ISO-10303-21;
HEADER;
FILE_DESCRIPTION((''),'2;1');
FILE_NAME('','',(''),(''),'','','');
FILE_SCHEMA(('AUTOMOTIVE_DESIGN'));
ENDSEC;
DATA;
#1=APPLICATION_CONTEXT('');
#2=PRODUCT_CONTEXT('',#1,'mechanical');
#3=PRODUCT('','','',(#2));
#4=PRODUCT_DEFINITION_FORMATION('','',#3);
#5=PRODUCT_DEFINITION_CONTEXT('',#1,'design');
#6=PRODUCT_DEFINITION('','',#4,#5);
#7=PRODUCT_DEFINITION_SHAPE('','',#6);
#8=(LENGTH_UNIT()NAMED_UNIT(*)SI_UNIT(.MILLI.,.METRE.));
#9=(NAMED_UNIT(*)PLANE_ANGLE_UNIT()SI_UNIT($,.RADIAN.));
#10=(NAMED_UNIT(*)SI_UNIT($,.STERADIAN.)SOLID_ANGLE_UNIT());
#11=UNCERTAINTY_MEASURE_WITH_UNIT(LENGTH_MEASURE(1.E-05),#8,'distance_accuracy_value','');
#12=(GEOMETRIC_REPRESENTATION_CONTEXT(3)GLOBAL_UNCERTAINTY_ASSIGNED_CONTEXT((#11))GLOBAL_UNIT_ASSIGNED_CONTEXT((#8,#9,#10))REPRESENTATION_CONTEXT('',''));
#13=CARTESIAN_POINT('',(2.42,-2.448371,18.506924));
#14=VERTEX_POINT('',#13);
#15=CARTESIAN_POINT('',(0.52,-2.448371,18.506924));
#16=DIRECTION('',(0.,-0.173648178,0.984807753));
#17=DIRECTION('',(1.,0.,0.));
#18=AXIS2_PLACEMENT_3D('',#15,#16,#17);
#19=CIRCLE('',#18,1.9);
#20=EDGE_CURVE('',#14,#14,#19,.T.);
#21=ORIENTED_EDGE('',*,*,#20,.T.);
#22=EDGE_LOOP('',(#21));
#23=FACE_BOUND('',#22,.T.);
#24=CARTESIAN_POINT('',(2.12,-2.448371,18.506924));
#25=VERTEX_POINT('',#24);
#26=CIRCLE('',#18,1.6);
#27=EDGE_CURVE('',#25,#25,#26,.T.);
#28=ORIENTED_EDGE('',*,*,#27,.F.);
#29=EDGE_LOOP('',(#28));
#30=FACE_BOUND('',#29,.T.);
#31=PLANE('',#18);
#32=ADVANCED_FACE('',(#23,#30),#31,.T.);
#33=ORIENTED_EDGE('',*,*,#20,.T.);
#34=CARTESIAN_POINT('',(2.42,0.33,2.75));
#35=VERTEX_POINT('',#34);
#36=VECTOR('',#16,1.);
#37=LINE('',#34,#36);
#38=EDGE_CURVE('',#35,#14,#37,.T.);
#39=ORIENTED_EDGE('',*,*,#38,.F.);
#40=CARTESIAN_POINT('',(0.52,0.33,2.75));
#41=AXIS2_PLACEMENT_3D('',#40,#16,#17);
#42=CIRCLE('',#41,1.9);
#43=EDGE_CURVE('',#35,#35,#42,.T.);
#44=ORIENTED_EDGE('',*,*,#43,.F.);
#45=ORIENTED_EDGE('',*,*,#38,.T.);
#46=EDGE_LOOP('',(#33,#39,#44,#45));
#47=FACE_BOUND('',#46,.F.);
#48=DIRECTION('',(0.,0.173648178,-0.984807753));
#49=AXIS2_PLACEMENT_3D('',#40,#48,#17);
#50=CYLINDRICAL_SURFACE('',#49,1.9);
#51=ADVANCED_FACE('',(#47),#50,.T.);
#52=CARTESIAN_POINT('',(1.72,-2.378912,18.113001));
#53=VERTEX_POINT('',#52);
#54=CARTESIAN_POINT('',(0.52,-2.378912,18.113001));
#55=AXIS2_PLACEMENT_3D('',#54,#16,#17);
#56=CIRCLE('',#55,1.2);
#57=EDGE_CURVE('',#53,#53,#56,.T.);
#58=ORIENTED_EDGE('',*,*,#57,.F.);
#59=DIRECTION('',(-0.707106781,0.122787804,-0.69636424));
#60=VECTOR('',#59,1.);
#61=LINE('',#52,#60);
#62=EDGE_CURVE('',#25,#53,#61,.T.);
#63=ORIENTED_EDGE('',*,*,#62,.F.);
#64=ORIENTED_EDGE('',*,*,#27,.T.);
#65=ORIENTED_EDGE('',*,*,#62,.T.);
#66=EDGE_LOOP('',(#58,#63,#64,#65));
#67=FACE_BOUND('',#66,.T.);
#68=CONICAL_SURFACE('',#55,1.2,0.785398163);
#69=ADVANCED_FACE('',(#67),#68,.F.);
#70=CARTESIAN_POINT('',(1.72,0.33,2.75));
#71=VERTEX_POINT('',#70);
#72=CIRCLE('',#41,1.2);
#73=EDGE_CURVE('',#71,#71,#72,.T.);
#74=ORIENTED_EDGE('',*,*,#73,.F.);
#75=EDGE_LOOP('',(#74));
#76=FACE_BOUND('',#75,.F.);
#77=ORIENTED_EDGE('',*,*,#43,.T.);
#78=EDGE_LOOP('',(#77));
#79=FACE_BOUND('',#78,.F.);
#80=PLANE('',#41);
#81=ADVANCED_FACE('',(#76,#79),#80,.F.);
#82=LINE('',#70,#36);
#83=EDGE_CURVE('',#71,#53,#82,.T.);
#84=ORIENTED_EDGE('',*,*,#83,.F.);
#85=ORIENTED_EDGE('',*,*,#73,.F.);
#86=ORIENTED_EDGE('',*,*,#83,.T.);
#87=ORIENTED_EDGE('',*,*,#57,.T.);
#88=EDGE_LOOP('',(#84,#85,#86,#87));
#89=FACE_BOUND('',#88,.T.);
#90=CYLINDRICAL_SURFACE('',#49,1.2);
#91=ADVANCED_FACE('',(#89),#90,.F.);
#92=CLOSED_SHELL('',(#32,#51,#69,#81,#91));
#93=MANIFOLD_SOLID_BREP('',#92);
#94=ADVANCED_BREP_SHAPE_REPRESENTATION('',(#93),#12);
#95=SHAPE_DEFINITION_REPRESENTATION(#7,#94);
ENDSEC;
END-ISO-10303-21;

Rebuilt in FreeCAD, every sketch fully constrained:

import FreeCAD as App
import Part
import Sketcher
from FreeCAD import Vector


def edges_at(feature, points):
    """Names of the edges that pass closest to the given points."""
    edges = feature.Shape.Edges
    near = lambda p: min(range(len(edges)), key=lambda i: edges[i].distToShape(Part.Vertex(*p))[0])
    return sorted({f"Edge{near(p) + 1}" for p in points})

doc = App.newDocument("Part")
params = doc.addObject("Spreadsheet::Sheet", "Params")
for row, (alias, value) in enumerate([
    ("sketch1_diameter", "2.4 mm"),
    ("pad1_length", "16 mm"),
    ("sketch2_diameter", "3.8 mm"),
    ("pad2_length", "16 mm"),
    ("chamfer_size", "0.4 mm"),
], start=1):
    params.set(f"A{row}", alias)
    params.set(f"B{row}", "=" + value)
    params.setAlias(f"B{row}", alias)

body = doc.addObject("PartDesign::Body", "Body")

# Sketch on XY plane
sketch1 = body.newObject("Sketcher::SketchObject", "Sketch")
sketch1.AttachmentSupport = (doc.getObject("XY_Plane"), [""])
sketch1.MapMode = "FlatFace"
sketch1.addGeometry(Part.Circle(Vector(0, 0, 0), Vector(0, 0, 1), 1.2), False)
sketch1.addConstraint(Sketcher.Constraint("Coincident", 0, 3, -1, 1))
sketch1.addConstraint(Sketcher.Constraint("Diameter", 0, 2.4))
sketch1.setExpression("Constraints[1]", "Params.sketch1_diameter")
pad1 = body.newObject("PartDesign::Pad", "Pad")
pad1.Profile = sketch1
pad1.setExpression("Length", "Params.pad1_length")
body2 = doc.addObject("PartDesign::Body", "Body001")
doc.recompute()

body.Placement = App.Placement(Vector(0.52, 0.33, 2.75), App.Rotation(Vector(1, 0, 0), 10))
boolean = body2.newObject("PartDesign::Boolean", "Boolean")
boolean.Type = "Fuse"
boolean.addObjects([body])
body3 = doc.addObject("PartDesign::Body", "Body002")

# Sketch on XY plane
sketch2 = body3.newObject("Sketcher::SketchObject", "Sketch001")
sketch2.AttachmentSupport = (doc.getObject("XY_Plane002"), [""])
sketch2.MapMode = "FlatFace"
sketch2.addGeometry(Part.Circle(Vector(0, 0, 0), Vector(0, 0, 1), 1.9), False)
sketch2.addConstraint(Sketcher.Constraint("Coincident", 0, 3, -1, 1))
sketch2.addConstraint(Sketcher.Constraint("Diameter", 0, 3.8))
sketch2.setExpression("Constraints[1]", "Params.sketch2_diameter")
pad2 = body3.newObject("PartDesign::Pad", "Pad001")
pad2.Profile = sketch2
pad2.setExpression("Length", "Params.pad2_length")
body4 = doc.addObject("PartDesign::Body", "Body003")
doc.recompute()

body3.Placement = App.Placement(Vector(0.52, 0.33, 2.75), App.Rotation(Vector(1, 0, 0), 10))
boolean2 = body4.newObject("PartDesign::Boolean", "Boolean001")
boolean2.Type = "Fuse"
boolean2.addObjects([body3])
doc.recompute()

boolean3 = body4.newObject("PartDesign::Boolean", "Boolean002")
boolean3.Type = "Cut"
boolean3.addObjects([body2])
doc.recompute()

chamfer = body4.newObject("PartDesign::Chamfer", "Chamfer")
chamfer.Base = (boolean3, edges_at(boolean3, [(-0.68, -2.448, 18.507)]))
chamfer.setExpression("Size", "Params.chamfer_size")

doc.recompute()
